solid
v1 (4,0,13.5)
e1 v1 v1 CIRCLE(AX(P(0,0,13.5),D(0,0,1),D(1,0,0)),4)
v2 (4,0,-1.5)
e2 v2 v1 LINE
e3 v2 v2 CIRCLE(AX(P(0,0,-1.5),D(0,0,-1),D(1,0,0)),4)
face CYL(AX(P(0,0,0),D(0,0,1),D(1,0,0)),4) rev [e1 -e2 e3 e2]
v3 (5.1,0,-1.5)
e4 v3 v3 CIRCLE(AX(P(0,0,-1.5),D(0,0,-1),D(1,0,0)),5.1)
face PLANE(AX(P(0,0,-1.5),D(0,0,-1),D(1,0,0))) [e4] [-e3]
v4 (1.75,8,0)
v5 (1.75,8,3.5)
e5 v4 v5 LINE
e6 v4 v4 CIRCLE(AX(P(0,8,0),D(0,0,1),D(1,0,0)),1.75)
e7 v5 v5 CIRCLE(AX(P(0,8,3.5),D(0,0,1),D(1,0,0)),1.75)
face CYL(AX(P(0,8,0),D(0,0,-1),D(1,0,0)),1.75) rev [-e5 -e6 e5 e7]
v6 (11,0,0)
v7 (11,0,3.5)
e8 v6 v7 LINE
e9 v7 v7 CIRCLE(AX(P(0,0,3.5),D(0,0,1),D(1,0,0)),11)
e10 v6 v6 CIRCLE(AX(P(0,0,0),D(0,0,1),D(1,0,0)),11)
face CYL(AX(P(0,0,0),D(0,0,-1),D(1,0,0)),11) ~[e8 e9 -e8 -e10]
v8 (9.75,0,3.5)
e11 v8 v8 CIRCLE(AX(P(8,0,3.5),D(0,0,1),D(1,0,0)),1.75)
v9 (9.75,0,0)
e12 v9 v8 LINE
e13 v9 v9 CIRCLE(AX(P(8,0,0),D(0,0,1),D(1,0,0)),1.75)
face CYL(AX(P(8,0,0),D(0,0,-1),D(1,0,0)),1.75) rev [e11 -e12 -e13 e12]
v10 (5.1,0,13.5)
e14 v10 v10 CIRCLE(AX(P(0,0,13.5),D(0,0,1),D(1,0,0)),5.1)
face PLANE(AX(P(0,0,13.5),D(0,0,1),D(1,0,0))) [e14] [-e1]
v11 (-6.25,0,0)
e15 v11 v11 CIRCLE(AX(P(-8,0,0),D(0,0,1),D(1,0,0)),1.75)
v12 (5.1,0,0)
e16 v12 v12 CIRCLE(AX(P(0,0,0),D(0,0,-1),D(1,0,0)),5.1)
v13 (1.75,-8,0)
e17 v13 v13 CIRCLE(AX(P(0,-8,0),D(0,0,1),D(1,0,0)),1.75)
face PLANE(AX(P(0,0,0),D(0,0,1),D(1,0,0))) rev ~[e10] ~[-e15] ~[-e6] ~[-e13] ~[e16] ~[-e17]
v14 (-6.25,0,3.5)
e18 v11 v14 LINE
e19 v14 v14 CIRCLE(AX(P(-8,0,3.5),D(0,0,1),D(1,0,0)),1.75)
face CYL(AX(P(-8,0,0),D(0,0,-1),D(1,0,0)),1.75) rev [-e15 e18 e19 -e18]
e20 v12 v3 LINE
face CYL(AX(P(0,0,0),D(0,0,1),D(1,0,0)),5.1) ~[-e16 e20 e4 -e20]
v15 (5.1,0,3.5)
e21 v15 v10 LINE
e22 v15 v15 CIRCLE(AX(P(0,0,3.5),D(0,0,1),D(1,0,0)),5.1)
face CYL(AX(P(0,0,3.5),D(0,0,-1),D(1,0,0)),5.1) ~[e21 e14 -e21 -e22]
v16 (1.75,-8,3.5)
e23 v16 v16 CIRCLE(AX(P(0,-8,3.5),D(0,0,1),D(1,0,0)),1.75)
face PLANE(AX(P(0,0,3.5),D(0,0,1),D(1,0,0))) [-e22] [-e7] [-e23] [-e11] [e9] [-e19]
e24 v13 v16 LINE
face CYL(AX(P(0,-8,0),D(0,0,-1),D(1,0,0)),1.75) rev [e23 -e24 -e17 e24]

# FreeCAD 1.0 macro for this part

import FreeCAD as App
import Part
import Sketcher

V = App.Vector
Q = App.Units.Quantity

doc = App.newDocument("Part")
body = doc.addObject("PartDesign::Body", "Body")

# Sketch on XY plane
sketch1 = body.newObject("Sketcher::SketchObject", "Sketch")
sketch1.AttachmentSupport = (doc.getObject("XY_Plane"), [""])
sketch1.MapMode = "FlatFace"
sketch1.addGeometry(Part.Circle(V(0, 0, 0), V(0, 0, 1), 11), False)
sketch1.addGeometry(Part.Circle(V(0, -8, 0), V(0, 0, 1), 1.75), False)
sketch1.addGeometry(Part.Circle(V(-8, 0, 0), V(0, 0, 1), 1.75), False)
sketch1.addGeometry(Part.Circle(V(0, 0, 0), V(0, 0, 1), 4), False)
sketch1.addGeometry(Part.Circle(V(8, 0, 0), V(0, 0, 1), 1.75), False)
sketch1.addGeometry(Part.Circle(V(0, 8, 0), V(0, 0, 1), 1.75), False)
sketch1.addConstraint(Sketcher.Constraint("Coincident", 0, 3, -1, 1))
sketch1.addConstraint(Sketcher.Constraint("Coincident", 3, 3, -1, 1))
sketch1.addConstraint(Sketcher.Constraint("Equal", 1, 2))
sketch1.addConstraint(Sketcher.Constraint("Equal", 2, 4))
sketch1.addConstraint(Sketcher.Constraint("Equal", 4, 5))
sketch1.addConstraint(Sketcher.Constraint("Symmetric", 2, 3, 4, 3, -1, 1))
sketch1.addConstraint(Sketcher.Constraint("Symmetric", 1, 3, 5, 3, -1, 1))
sketch1.addConstraint(Sketcher.Constraint("PointOnObject", 1, 3, -2))
sketch1.addConstraint(Sketcher.Constraint("PointOnObject", 2, 3, -1))
sketch1.addConstraint(Sketcher.Constraint("Diameter", 0, Q("22 mm")))
sketch1.addConstraint(Sketcher.Constraint("Diameter", 3, Q("8 mm")))
sketch1.addConstraint(Sketcher.Constraint("Diameter", 1, Q("3.5 mm")))
sketch1.addConstraint(Sketcher.Constraint("DistanceY", 1, 3, -1, 1, Q("8 mm")))
sketch1.addConstraint(Sketcher.Constraint("DistanceX", 2, 3, -1, 1, Q("8 mm")))
pad1 = body.newObject("PartDesign::Pad", "Pad")
pad1.Profile = sketch1
pad1.Length = 3.5

# Sketch on XY plane
sketch2 = body.newObject("Sketcher::SketchObject", "Sketch001")
sketch2.AttachmentSupport = (doc.getObject("XY_Plane"), [""])
sketch2.MapMode = "FlatFace"
sketch2.AttachmentOffset = App.Placement(V(0, 0, 3.5), App.Rotation())
sketch2.addGeometry(Part.Circle(V(0, 0, 0), V(0, 0, 1), 5.1), False)
sketch2.addGeometry(Part.Circle(V(0, 0, 0), V(0, 0, 1), 4), False)
sketch2.addConstraint(Sketcher.Constraint("Coincident", 0, 3, -1, 1))
sketch2.addConstraint(Sketcher.Constraint("Coincident", 1, 3, -1, 1))
sketch2.addConstraint(Sketcher.Constraint("Diameter", 1, Q("8 mm")))
sketch2.addConstraint(Sketcher.Constraint("Diameter", 0, Q("10.2 mm")))
pad2 = body.newObject("PartDesign::Pad", "Pad001")
pad2.Profile = sketch2
pad2.Length = 10

# Sketch on XY plane
sketch3 = body.newObject("Sketcher::SketchObject", "Sketch002")
sketch3.AttachmentSupport = (doc.getObject("XY_Plane"), [""])
sketch3.MapMode = "FlatFace"
sketch3.addGeometry(Part.Circle(V(0, 0, 0), V(0, 0, 1), 5.1), False)
sketch3.addGeometry(Part.Circle(V(0, 0, 0), V(0, 0, 1), 4), False)
sketch3.addConstraint(Sketcher.Constraint("Coincident", 0, 3, -1, 1))
sketch3.addConstraint(Sketcher.Constraint("Coincident", 1, 3, -1, 1))
sketch3.addConstraint(Sketcher.Constraint("Diameter", 1, Q("8 mm")))
sketch3.addConstraint(Sketcher.Constraint("Diameter", 0, Q("10.2 mm")))
pad3 = body.newObject("PartDesign::Pad", "Pad002")
pad3.Profile = sketch3
pad3.Length = 1.5
pad3.Reversed = True

doc.recompute()
